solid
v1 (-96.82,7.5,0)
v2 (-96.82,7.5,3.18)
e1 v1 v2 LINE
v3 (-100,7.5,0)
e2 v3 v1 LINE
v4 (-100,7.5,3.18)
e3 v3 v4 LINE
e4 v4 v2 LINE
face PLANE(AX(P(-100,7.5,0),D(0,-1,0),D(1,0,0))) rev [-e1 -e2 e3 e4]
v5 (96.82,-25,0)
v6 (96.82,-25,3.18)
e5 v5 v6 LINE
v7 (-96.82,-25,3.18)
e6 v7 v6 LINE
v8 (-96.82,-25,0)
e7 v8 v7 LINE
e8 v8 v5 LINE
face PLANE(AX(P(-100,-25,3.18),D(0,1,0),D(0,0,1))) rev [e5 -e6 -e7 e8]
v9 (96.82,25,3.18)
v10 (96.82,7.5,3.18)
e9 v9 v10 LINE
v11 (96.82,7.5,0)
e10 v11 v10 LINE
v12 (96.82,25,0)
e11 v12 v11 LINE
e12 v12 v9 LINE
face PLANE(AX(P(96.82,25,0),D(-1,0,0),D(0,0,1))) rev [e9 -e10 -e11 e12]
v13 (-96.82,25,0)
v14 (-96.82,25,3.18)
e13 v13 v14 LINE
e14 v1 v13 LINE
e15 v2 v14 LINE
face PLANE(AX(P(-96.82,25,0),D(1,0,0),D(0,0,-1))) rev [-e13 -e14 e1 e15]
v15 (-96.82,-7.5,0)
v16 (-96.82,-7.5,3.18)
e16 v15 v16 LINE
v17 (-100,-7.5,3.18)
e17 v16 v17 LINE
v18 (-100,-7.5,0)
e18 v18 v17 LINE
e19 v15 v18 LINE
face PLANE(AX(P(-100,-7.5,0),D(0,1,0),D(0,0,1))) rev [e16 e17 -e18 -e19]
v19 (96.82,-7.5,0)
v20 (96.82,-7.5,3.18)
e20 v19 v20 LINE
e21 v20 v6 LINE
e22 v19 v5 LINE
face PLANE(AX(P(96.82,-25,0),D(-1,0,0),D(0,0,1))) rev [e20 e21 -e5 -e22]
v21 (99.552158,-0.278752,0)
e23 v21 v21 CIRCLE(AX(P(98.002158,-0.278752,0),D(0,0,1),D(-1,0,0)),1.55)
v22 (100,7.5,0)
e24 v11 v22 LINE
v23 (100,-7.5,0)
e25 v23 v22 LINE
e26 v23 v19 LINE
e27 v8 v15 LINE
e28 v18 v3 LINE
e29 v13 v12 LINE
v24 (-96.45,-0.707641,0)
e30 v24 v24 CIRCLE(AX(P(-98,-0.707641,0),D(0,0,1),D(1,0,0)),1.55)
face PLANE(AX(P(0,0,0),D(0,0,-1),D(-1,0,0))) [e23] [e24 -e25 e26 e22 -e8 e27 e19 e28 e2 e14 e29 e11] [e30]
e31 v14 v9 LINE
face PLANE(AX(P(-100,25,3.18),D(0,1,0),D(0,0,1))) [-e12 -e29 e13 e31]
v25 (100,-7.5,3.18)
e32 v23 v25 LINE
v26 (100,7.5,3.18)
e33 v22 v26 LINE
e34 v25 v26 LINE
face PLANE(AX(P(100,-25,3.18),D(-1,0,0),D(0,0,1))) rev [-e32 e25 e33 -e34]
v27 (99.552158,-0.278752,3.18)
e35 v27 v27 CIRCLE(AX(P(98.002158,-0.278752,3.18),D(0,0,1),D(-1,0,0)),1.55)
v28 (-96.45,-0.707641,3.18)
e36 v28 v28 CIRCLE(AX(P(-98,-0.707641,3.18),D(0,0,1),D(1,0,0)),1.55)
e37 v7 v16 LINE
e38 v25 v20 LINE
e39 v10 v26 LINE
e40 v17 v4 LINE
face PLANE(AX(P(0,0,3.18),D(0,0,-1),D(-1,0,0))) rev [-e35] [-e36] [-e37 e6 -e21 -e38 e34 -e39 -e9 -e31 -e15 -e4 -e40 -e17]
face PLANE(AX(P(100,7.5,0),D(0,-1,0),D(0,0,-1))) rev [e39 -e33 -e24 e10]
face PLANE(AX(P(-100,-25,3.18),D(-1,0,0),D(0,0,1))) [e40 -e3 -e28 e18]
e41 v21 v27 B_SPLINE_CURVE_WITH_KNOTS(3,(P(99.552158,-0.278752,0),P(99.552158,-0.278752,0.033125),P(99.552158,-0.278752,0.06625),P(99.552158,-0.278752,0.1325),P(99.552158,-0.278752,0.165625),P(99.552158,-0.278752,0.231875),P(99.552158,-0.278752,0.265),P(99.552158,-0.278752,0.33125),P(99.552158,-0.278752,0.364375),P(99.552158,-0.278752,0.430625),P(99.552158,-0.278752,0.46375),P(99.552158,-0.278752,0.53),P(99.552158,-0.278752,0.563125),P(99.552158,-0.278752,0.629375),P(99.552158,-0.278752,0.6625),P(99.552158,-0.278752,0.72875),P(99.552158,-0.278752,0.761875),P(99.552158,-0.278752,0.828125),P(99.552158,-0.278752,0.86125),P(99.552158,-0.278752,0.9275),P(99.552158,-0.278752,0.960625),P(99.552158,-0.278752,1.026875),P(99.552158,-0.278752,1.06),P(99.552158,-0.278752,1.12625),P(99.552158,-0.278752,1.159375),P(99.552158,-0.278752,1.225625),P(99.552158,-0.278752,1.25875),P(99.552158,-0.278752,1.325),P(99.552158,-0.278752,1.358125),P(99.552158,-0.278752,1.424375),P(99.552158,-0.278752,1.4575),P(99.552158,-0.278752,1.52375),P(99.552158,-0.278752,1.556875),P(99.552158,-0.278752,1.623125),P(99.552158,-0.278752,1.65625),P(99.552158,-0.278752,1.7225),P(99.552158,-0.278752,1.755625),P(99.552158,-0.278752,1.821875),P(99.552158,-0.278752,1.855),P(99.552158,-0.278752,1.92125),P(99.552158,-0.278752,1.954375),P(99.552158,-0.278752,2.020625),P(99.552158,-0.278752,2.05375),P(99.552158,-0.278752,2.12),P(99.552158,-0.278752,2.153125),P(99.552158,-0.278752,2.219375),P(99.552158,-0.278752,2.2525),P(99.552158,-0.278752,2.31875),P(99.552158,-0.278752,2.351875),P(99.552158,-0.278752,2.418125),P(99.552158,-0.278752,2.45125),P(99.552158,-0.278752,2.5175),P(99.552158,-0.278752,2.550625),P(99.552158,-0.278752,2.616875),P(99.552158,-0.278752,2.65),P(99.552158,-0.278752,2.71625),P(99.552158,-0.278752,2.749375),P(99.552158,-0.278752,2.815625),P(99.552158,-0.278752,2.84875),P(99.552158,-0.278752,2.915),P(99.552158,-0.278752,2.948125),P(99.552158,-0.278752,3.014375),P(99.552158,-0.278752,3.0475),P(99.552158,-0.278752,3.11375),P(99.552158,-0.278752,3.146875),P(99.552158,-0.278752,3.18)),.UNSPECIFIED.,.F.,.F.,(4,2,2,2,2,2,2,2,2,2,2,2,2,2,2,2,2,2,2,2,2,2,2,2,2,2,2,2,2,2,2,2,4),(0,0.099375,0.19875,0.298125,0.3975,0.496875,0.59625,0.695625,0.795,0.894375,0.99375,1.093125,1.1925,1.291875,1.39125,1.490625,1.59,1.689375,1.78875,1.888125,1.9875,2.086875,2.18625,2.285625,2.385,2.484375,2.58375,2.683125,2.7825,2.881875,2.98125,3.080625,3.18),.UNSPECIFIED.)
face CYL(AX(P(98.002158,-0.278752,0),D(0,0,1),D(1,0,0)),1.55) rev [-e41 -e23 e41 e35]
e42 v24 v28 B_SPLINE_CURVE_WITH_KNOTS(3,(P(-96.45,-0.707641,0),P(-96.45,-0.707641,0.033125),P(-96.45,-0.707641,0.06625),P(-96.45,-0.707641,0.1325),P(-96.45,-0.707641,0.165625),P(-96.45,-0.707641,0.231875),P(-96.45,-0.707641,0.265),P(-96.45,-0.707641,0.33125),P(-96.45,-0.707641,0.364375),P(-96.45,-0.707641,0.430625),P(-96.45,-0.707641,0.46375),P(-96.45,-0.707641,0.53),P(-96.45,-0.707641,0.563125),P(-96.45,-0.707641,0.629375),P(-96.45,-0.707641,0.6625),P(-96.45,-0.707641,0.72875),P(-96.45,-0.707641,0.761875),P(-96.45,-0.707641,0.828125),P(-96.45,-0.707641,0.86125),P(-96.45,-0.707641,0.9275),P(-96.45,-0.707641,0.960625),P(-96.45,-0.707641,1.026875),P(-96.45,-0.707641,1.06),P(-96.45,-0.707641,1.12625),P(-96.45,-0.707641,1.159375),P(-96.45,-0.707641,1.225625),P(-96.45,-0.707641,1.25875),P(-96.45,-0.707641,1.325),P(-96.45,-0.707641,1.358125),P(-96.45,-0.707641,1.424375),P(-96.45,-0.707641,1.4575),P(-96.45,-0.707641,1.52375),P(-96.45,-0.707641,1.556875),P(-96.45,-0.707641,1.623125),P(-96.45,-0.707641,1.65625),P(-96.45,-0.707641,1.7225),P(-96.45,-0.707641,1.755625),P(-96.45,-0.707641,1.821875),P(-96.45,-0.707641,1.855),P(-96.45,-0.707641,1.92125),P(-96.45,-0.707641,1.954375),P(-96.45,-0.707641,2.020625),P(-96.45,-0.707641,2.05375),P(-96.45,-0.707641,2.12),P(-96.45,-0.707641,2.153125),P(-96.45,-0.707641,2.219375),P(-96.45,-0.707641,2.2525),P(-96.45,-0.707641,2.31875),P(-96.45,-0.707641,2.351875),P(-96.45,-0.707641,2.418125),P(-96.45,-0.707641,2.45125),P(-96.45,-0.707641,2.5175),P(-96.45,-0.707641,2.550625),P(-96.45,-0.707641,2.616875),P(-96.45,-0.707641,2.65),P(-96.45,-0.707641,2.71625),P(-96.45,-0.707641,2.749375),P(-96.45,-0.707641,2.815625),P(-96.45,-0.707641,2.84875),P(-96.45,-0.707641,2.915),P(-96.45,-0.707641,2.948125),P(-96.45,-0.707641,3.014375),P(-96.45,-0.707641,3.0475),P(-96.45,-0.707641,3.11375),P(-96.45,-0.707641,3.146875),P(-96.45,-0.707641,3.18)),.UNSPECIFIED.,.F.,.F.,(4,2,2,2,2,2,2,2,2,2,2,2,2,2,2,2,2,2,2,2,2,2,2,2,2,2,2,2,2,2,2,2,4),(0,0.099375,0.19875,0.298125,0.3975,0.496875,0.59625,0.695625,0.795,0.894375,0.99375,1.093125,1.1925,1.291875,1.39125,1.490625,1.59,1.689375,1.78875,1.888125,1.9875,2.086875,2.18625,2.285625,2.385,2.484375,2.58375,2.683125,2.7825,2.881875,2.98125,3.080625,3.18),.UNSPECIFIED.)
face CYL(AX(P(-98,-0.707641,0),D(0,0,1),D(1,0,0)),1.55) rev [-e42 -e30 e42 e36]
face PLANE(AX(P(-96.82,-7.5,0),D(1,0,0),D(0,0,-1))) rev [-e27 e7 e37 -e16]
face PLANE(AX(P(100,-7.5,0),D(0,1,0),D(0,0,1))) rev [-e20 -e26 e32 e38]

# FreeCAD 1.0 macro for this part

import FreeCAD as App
import Part
import Sketcher

V = App.Vector

doc = App.newDocument("Part")
body = doc.addObject("PartDesign::Body", "Body")

sketch1 = body.newObject("Sketcher::SketchObject", "Sketch")
sketch1.AttachmentSupport = (doc.getObject("XY_Plane"), [""])
sketch1.MapMode = "FlatFace"
sketch1.addGeometry(Part.LineSegment(V(-100, 25, 0), V(-100, -25, 0)), False)
sketch1.addGeometry(Part.LineSegment(V(-100, -25, 0), V(100, -25, 0)), False)
sketch1.addGeometry(Part.LineSegment(V(100, -25, 0), V(100, 25, 0)), False)
sketch1.addGeometry(Part.LineSegment(V(100, 25, 0), V(-100, 25, 0)), False)
sketch1.addConstraint(Sketcher.Constraint("Coincident", 0, 2, 1, 1))
sketch1.addConstraint(Sketcher.Constraint("Coincident", 1, 2, 2, 1))
sketch1.addConstraint(Sketcher.Constraint("Coincident", 2, 2, 3, 1))
sketch1.addConstraint(Sketcher.Constraint("Coincident", 3, 2, 0, 1))
sketch1.addConstraint(Sketcher.Constraint("Vertical", 0))
sketch1.addConstraint(Sketcher.Constraint("Horizontal", 1))
sketch1.addConstraint(Sketcher.Constraint("Vertical", 2))
sketch1.addConstraint(Sketcher.Constraint("Horizontal", 3))
sketch1.addConstraint(Sketcher.Constraint("Symmetric", 0, 2, 2, 2, -1, 1))
sketch1.addConstraint(Sketcher.Constraint("DistanceX", 1, 1, 1, 2, 200.0))
sketch1.addConstraint(Sketcher.Constraint("DistanceY", 0, 2, 0, 1, 50.0))
pad1 = body.newObject("PartDesign::Pad", "Pad")
pad1.Profile = sketch1
pad1.Length = 3.18

sketch2 = body.newObject("Sketcher::SketchObject", "Sketch001")
sketch2.AttachmentSupport = (doc.getObject("XY_Plane"), [""])
sketch2.MapMode = "FlatFace"
sketch2.AttachmentOffset = App.Placement(V(0, 0, 3.18), App.Rotation())
sketch2.addGeometry(Part.LineSegment(V(-100, 25, 0), V(-100, 7.5, 0)), False)
sketch2.addGeometry(Part.LineSegment(V(-100, 7.5, 0), V(-96.8, 7.5, 0)), False)
sketch2.addGeometry(Part.LineSegment(V(-96.8, 7.5, 0), V(-96.8, 25, 0)), False)
sketch2.addGeometry(Part.LineSegment(V(-96.8, 25, 0), V(-100, 25, 0)), False)
sketch2.addGeometry(Part.LineSegment(V(-100, -7.5, 0), V(-100, -25, 0)), False)
sketch2.addGeometry(Part.LineSegment(V(-100, -25, 0), V(-96.8, -25, 0)), False)
sketch2.addGeometry(Part.LineSegment(V(-96.8, -25, 0), V(-96.8, -7.5, 0)), False)
sketch2.addGeometry(Part.LineSegment(V(-96.8, -7.5, 0), V(-100, -7.5, 0)), False)
sketch2.addGeometry(Part.LineSegment(V(96.8, 25, 0), V(96.8, 7.5, 0)), False)
sketch2.addGeometry(Part.LineSegment(V(96.8, 7.5, 0), V(100, 7.5, 0)), False)
sketch2.addGeometry(Part.LineSegment(V(100, 7.5, 0), V(100, 25, 0)), False)
sketch2.addGeometry(Part.LineSegment(V(100, 25, 0), V(96.8, 25, 0)), False)
sketch2.addGeometry(Part.LineSegment(V(96.8, -7.5, 0), V(96.8, -25, 0)), False)
sketch2.addGeometry(Part.LineSegment(V(96.8, -25, 0), V(100, -25, 0)), False)
sketch2.addGeometry(Part.LineSegment(V(100, -25, 0), V(100, -7.5, 0)), False)
sketch2.addGeometry(Part.LineSegment(V(100, -7.5, 0), V(96.8, -7.5, 0)), False)
sketch2.addConstraint(Sketcher.Constraint("Coincident", 0, 2, 1, 1))
sketch2.addConstraint(Sketcher.Constraint("Coincident", 1, 2, 2, 1))
sketch2.addConstraint(Sketcher.Constraint("Coincident", 2, 2, 3, 1))
sketch2.addConstraint(Sketcher.Constraint("Coincident", 3, 2, 0, 1))
sketch2.addConstraint(Sketcher.Constraint("Coincident", 4, 2, 5, 1))
sketch2.addConstraint(Sketcher.Constraint("Coincident", 5, 2, 6, 1))
sketch2.addConstraint(Sketcher.Constraint("Coincident", 6, 2, 7, 1))
sketch2.addConstraint(Sketcher.Constraint("Coincident", 7, 2, 4, 1))
sketch2.addConstraint(Sketcher.Constraint("Coincident", 8, 2, 9, 1))
sketch2.addConstraint(Sketcher.Constraint("Coincident", 9, 2, 10, 1))
sketch2.addConstraint(Sketcher.Constraint("Coincident", 10, 2, 11, 1))
sketch2.addConstraint(Sketcher.Constraint("Coincident", 11, 2, 8, 1))
sketch2.addConstraint(Sketcher.Constraint("Coincident", 12, 2, 13, 1))
sketch2.addConstraint(Sketcher.Constraint("Coincident", 13, 2, 14, 1))
sketch2.addConstraint(Sketcher.Constraint("Coincident", 14, 2, 15, 1))
sketch2.addConstraint(Sketcher.Constraint("Coincident", 15, 2, 12, 1))
sketch2.addConstraint(Sketcher.Constraint("Vertical", 0))
sketch2.addConstraint(Sketcher.Constraint("Horizontal", 1))
sketch2.addConstraint(Sketcher.Constraint("Vertical", 2))
sketch2.addConstraint(Sketcher.Constraint("Horizontal", 3))
sketch2.addConstraint(Sketcher.Constraint("Vertical", 4))
sketch2.addConstraint(Sketcher.Constraint("Horizontal", 5))
sketch2.addConstraint(Sketcher.Constraint("Vertical", 6))
sketch2.addConstraint(Sketcher.Constraint("Horizontal", 7))
sketch2.addConstraint(Sketcher.Constraint("Vertical", 8))
sketch2.addConstraint(Sketcher.Constraint("Horizontal", 9))
sketch2.addConstraint(Sketcher.Constraint("Vertical", 10))
sketch2.addConstraint(Sketcher.Constraint("Horizontal", 11))
sketch2.addConstraint(Sketcher.Constraint("Vertical", 12))
sketch2.addConstraint(Sketcher.Constraint("Horizontal", 13))
sketch2.addConstraint(Sketcher.Constraint("Vertical", 14))
sketch2.addConstraint(Sketcher.Constraint("Horizontal", 15))
sketch2.addConstraint(Sketcher.Constraint("Symmetric", 6, 2, 8, 2, -1, 1))
sketch2.addConstraint(Sketcher.Constraint("Symmetric", 4, 2, 10, 2, -1, 1))
sketch2.addConstraint(Sketcher.Constraint("Symmetric", 2, 2, 12, 2, -1, 1))
sketch2.addConstraint(Sketcher.Constraint("Symmetric", 0, 2, 14, 2, -1, 1))
sketch2.addConstraint(Sketcher.Constraint("Symmetric", 1, 2, 8, 2, -2))
sketch2.addConstraint(Sketcher.Constraint("Symmetric", 3, 2, 10, 2, -2))
sketch2.addConstraint(Sketcher.Constraint("DistanceY", 0, 2, 0, 1, 17.5))
sketch2.addConstraint(Sketcher.Constraint("DistanceX", 0, 2, -1, 1, 100.0))
sketch2.addConstraint(Sketcher.Constraint("DistanceY", -1, 1, 2, 2, 25.0))
sketch2.addConstraint(Sketcher.Constraint("DistanceX", 1, 1, 1, 2, 3.18))
pocket1 = body.newObject("PartDesign::Pocket", "Pocket")
pocket1.Profile = sketch2
pocket1.Type = "ThroughAll"

sketch3 = body.newObject("Sketcher::SketchObject", "Sketch002")
sketch3.AttachmentSupport = (doc.getObject("XY_Plane"), [""])
sketch3.MapMode = "FlatFace"
sketch3.AttachmentOffset = App.Placement(V(0, 0, 3.18), App.Rotation())
sketch3.addGeometry(Part.Circle(V(-98, -0.7, 0), V(0, 0, 1), 1.6), False)
sketch3.addGeometry(Part.Circle(V(98, -0.3, 0), V(0, 0, 1), 1.6), False)
sketch3.addConstraint(Sketcher.Constraint("Equal", 0, 1))
sketch3.addConstraint(Sketcher.Constraint("Diameter", 0, 3.1))
sketch3.addConstraint(Sketcher.Constraint("DistanceX", 0, 3, -1, 1, 98.0))
sketch3.addConstraint(Sketcher.Constraint("DistanceY", 0, 3, -1, 1, 0.707641))
sketch3.addConstraint(Sketcher.Constraint("DistanceX", -1, 1, 1, 3, 98.002158))
sketch3.addConstraint(Sketcher.Constraint("DistanceY", 0, 3, 1, 3, 0.428889))
pocket2 = body.newObject("PartDesign::Pocket", "Pocket001")
pocket2.Profile = sketch3
pocket2.Type = "ThroughAll"

doc.recompute()
